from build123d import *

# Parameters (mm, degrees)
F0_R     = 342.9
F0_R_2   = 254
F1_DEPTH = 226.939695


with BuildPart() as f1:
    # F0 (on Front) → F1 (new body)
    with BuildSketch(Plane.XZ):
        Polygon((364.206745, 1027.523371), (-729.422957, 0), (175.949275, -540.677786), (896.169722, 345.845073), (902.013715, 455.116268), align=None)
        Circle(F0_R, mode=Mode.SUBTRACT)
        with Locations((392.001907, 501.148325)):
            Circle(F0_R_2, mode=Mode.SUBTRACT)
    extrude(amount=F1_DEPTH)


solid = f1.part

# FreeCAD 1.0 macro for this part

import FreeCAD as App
import Part
import Sketcher
Q = App.Units.Quantity


def add_polygon(sketch, points):
    """Adds a closed chain of lines whose ends are joined by coincident constraints."""
    first, n = sketch.GeometryCount, len(points)
    for a, b in zip(points, points[1:] + points[:1]):
        sketch.addGeometry(Part.LineSegment(App.Vector(*a, 0), App.Vector(*b, 0)), False)
    for i in range(n):
        sketch.addConstraint(Sketcher.Constraint("Coincident", first + i, 2, first + (i + 1) % n, 1))

doc = App.newDocument("Part")
body = doc.addObject("PartDesign::Body", "Body")

# Sketch on XZ plane
sketch1 = body.newObject("Sketcher::SketchObject", "Sketch")
sketch1.AttachmentSupport = (doc.getObject("XZ_Plane"), [""])
sketch1.MapMode = "FlatFace"
add_polygon(sketch1, [(364.206745, 1027.523371), (-729.422957, 0), (175.949275, -540.677786), (896.169722, 345.845073), (902.013715, 455.116268)])  # lines 0-4
sketch1.addGeometry(Part.Circle(App.Vector(0, 0, 0), App.Vector(0, 0, 1), 342.9), False)  # 5
sketch1.addGeometry(Part.Circle(App.Vector(392.001907, 501.148325, 0), App.Vector(0, 0, 1), 254), False)  # 6
sketch1.addConstraint(Sketcher.Constraint("Coincident", 5, 3, -1, 1))
sketch1.addConstraint(Sketcher.Constraint("PointOnObject", 0, 2, -1))
sketch1.addConstraint(Sketcher.Constraint("Perpendicular", 0, 4))
sketch1.addConstraint(Sketcher.Constraint("Diameter", 5, Q("27 in")))
sketch1.addConstraint(Sketcher.Constraint("Diameter", 6, Q("20 in")))
sketch1.addConstraint(Sketcher.Constraint("DistanceY", 2, 2, 4, 2, 681.678298))
sketch1.addConstraint(Sketcher.Constraint("DistanceX", 0, 2, 4, 2, 1093.629702))
sketch1.addConstraint(Sketcher.Constraint("Distance", 1, 1054.528969))
sketch1.addConstraint(Sketcher.Constraint("Distance", 4, 785.421052))
sketch1.addConstraint(Sketcher.Constraint("DistanceX", -1, 1, 2, 2, 896.169722))
sketch1.addConstraint(Sketcher.Constraint("DistanceY", -1, 1, 3, 2, 455.116268))
sketch1.addConstraint(Sketcher.Constraint("DistanceX", 0, 2, 1, 2, 905.372232))
sketch1.addConstraint(Sketcher.Constraint("DistanceY", 1, 2, 6, 3, 1041.826111))
sketch1.addConstraint(Sketcher.Constraint("DistanceX", 0, 2, 2, 2, 1625.592679))
sketch1.addConstraint(Sketcher.Constraint("DistanceX", 6, 3, 3, 2, 510.011808))
pad1 = body.newObject("PartDesign::Pad", "Pad")
pad1.Profile = sketch1
pad1.Length = 226.939695

doc.recompute()
